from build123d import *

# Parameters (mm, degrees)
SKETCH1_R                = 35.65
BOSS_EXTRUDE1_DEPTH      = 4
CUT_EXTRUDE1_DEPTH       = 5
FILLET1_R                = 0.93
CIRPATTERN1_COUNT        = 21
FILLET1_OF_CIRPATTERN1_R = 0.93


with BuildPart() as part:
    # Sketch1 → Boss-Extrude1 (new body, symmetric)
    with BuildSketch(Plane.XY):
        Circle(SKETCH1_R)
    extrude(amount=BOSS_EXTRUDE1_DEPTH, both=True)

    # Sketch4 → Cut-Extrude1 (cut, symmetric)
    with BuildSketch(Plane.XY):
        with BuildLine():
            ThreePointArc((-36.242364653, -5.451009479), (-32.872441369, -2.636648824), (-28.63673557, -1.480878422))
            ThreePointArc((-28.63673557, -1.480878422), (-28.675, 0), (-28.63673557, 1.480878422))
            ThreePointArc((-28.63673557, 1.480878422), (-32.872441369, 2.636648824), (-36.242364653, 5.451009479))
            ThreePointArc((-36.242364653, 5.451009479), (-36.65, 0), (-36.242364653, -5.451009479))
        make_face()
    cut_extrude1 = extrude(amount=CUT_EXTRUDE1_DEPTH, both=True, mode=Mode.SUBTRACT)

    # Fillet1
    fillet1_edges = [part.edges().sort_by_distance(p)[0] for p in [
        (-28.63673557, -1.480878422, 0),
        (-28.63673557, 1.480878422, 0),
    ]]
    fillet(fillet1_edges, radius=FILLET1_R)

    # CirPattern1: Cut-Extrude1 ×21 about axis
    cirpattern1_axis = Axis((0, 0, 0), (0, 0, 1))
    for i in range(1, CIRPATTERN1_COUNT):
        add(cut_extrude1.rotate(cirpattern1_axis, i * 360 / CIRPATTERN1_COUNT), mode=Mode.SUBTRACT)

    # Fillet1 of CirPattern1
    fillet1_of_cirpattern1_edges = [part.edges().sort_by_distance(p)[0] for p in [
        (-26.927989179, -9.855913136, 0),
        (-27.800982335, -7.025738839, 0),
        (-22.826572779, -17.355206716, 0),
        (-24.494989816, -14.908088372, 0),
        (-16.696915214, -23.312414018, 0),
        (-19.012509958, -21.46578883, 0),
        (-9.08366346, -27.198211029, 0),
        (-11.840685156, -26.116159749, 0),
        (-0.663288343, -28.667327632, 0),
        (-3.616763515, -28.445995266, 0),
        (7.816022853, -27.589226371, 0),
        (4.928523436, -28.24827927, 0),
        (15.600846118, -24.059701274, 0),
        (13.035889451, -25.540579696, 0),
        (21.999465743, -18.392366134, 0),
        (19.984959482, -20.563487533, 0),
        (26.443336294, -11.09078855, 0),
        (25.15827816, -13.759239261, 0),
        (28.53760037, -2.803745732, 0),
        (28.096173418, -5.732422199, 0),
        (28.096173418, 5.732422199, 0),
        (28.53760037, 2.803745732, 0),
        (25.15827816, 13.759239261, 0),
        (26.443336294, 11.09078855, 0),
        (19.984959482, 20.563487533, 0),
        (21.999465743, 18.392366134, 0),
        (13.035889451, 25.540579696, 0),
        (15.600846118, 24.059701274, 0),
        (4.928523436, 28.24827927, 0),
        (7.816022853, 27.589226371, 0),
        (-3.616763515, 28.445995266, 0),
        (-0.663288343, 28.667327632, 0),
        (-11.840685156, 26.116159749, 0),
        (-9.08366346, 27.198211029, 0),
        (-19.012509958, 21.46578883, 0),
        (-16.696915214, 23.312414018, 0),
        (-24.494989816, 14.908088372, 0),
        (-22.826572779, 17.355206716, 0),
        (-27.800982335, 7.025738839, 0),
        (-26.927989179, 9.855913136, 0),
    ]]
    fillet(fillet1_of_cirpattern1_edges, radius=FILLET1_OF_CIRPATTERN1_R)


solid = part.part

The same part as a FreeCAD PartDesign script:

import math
import FreeCAD as App
import Part
import Sketcher

V = App.Vector
Q = App.Units.Quantity


def edges_at(feature, points):
    """Names of the edges that pass closest to the given points."""
    edges = feature.Shape.Edges
    near = lambda p: min(range(len(edges)), key=lambda i: edges[i].distToShape(Part.Vertex(*p))[0])
    return sorted({f"Edge{near(p) + 1}" for p in points})

doc = App.newDocument("Part")
body = doc.addObject("PartDesign::Body", "Body")

# Sketch on XY plane
sketch1 = body.newObject("Sketcher::SketchObject", "Sketch")
sketch1.AttachmentSupport = (doc.getObject("XY_Plane"), [""])
sketch1.MapMode = "FlatFace"
sketch1.addGeometry(Part.Circle(V(0, 0, 0), V(0, 0, 1), 35.65), False)
sketch1.addConstraint(Sketcher.Constraint("Coincident", 0, 3, -1, 1))
sketch1.addConstraint(Sketcher.Constraint("Diameter", 0, Q("71.3 mm")))
pad1 = body.newObject("PartDesign::Pad", "Pad")
pad1.Profile = sketch1
pad1.Length = 8
pad1.Midplane = True

# Sketch on XY plane
sketch2 = body.newObject("Sketcher::SketchObject", "Sketch001")
sketch2.AttachmentSupport = (doc.getObject("XY_Plane"), [""])
sketch2.MapMode = "FlatFace"
sketch2.addGeometry(Part.ArcOfCircle(Part.Circle(V(-28.104639, -11.770387, 0), V(0, 0, 1), 10.303257), math.radians(92.960274), math.radians(142.168758)), False)
sketch2.addGeometry(Part.ArcOfCircle(Part.Circle(V(0, 0, 0), V(0, 0, 1), 28.675), math.radians(177.039726), math.radians(182.960274)), False)
sketch2.addGeometry(Part.ArcOfCircle(Part.Circle(V(-28.104639, 11.770387, 0), V(0, 0, 1), 10.303257), math.radians(-142.168758), math.radians(-92.960274)), False)
sketch2.addGeometry(Part.ArcOfCircle(Part.Circle(V(0, 0, 0), V(0, 0, 1), 36.65), math.radians(171.446578), math.radians(188.553422)), False)
sketch2.addConstraint(Sketcher.Constraint("Coincident", 0, 1, 1, 2))
sketch2.addConstraint(Sketcher.Constraint("Coincident", 1, 1, 2, 2))
sketch2.addConstraint(Sketcher.Constraint("Coincident", 2, 1, 3, 1))
sketch2.addConstraint(Sketcher.Constraint("Coincident", 3, 2, 0, 2))
sketch2.addConstraint(Sketcher.Constraint("Coincident", 1, 3, -1, 1))
sketch2.addConstraint(Sketcher.Constraint("Coincident", 3, 3, -1, 1))
sketch2.addConstraint(Sketcher.Constraint("Equal", 0, 2))
sketch2.addConstraint(Sketcher.Constraint("Symmetric", 0, 3, 2, 3, -1))
sketch2.addConstraint(Sketcher.Constraint("Radius", 3, Q("36.65 mm")))
sketch2.addConstraint(Sketcher.Constraint("Radius", 1, Q("28.675 mm")))
sketch2.addConstraint(Sketcher.Constraint("Radius", 0, Q("10.303257 mm")))
sketch2.addConstraint(Sketcher.Constraint("DistanceX", 0, 3, -1, 1, Q("28.104639 mm")))
sketch2.addConstraint(Sketcher.Constraint("DistanceY", 0, 1, -1, 1, Q("1.480878 mm")))
pocket1 = body.newObject("PartDesign::Pocket", "Pocket")
pocket1.Profile = sketch2
pocket1.Length = 10
pocket1.Midplane = True
doc.recompute()

fillet = body.newObject("PartDesign::Fillet", "Fillet")
fillet.Base = (pocket1, edges_at(pocket1, [(-28.637, -1.481, 0), (-28.637, 1.481, 0)]))
fillet.Radius = 0.93
doc.recompute()

polarpattern = body.newObject("PartDesign::PolarPattern", "PolarPattern")
polarpattern.Originals = [pocket1]
polarpattern.Axis = (doc.getObject("Z_Axis"), [""])
polarpattern.Angle = 360
polarpattern.Occurrences = 21
body.Tip = polarpattern
doc.recompute()

fillet2 = body.newObject("PartDesign::Fillet", "Fillet001")
fillet2.Base = (polarpattern, edges_at(polarpattern, [
    (-26.928, -9.856, 0),
    (-27.801, -7.026, 0),
    (-22.827, -17.355, 0),
    (-24.495, -14.908, 0),
    (-16.697, -23.312, 0),
    (-19.013, -21.466, 0),
    (-9.084, -27.198, 0),
    (-11.841, -26.116, 0),
    (-0.663, -28.667, 0),
    (-3.617, -28.446, 0),
    (7.816, -27.589, 0),
    (4.929, -28.248, 0),
    (15.601, -24.06, 0),
    (13.036, -25.541, 0),
    (21.999, -18.392, 0),
    (19.985, -20.563, 0),
    (26.443, -11.091, 0),
    (25.158, -13.759, 0),
    (28.538, -2.804, 0),
    (28.096, -5.732, 0),
    (28.096, 5.732, 0),
    (28.538, 2.804, 0),
    (25.158, 13.759, 0),
    (26.443, 11.091, 0),
    (19.985, 20.563, 0),
    (21.999, 18.392, 0),
    (13.036, 25.541, 0),
    (15.601, 24.06, 0),
    (4.929, 28.248, 0),
    (7.816, 27.589, 0),
    (-3.617, 28.446, 0),
    (-0.663, 28.667, 0),
    (-11.841, 26.116, 0),
    (-9.084, 27.198, 0),
    (-19.013, 21.466, 0),
    (-16.697, 23.312, 0),
    (-24.495, 14.908, 0),
    (-22.827, 17.355, 0),
    (-27.801, 7.026, 0),
    (-26.928, 9.856, 0),
]))
fillet2.Radius = 0.93

doc.recompute()
